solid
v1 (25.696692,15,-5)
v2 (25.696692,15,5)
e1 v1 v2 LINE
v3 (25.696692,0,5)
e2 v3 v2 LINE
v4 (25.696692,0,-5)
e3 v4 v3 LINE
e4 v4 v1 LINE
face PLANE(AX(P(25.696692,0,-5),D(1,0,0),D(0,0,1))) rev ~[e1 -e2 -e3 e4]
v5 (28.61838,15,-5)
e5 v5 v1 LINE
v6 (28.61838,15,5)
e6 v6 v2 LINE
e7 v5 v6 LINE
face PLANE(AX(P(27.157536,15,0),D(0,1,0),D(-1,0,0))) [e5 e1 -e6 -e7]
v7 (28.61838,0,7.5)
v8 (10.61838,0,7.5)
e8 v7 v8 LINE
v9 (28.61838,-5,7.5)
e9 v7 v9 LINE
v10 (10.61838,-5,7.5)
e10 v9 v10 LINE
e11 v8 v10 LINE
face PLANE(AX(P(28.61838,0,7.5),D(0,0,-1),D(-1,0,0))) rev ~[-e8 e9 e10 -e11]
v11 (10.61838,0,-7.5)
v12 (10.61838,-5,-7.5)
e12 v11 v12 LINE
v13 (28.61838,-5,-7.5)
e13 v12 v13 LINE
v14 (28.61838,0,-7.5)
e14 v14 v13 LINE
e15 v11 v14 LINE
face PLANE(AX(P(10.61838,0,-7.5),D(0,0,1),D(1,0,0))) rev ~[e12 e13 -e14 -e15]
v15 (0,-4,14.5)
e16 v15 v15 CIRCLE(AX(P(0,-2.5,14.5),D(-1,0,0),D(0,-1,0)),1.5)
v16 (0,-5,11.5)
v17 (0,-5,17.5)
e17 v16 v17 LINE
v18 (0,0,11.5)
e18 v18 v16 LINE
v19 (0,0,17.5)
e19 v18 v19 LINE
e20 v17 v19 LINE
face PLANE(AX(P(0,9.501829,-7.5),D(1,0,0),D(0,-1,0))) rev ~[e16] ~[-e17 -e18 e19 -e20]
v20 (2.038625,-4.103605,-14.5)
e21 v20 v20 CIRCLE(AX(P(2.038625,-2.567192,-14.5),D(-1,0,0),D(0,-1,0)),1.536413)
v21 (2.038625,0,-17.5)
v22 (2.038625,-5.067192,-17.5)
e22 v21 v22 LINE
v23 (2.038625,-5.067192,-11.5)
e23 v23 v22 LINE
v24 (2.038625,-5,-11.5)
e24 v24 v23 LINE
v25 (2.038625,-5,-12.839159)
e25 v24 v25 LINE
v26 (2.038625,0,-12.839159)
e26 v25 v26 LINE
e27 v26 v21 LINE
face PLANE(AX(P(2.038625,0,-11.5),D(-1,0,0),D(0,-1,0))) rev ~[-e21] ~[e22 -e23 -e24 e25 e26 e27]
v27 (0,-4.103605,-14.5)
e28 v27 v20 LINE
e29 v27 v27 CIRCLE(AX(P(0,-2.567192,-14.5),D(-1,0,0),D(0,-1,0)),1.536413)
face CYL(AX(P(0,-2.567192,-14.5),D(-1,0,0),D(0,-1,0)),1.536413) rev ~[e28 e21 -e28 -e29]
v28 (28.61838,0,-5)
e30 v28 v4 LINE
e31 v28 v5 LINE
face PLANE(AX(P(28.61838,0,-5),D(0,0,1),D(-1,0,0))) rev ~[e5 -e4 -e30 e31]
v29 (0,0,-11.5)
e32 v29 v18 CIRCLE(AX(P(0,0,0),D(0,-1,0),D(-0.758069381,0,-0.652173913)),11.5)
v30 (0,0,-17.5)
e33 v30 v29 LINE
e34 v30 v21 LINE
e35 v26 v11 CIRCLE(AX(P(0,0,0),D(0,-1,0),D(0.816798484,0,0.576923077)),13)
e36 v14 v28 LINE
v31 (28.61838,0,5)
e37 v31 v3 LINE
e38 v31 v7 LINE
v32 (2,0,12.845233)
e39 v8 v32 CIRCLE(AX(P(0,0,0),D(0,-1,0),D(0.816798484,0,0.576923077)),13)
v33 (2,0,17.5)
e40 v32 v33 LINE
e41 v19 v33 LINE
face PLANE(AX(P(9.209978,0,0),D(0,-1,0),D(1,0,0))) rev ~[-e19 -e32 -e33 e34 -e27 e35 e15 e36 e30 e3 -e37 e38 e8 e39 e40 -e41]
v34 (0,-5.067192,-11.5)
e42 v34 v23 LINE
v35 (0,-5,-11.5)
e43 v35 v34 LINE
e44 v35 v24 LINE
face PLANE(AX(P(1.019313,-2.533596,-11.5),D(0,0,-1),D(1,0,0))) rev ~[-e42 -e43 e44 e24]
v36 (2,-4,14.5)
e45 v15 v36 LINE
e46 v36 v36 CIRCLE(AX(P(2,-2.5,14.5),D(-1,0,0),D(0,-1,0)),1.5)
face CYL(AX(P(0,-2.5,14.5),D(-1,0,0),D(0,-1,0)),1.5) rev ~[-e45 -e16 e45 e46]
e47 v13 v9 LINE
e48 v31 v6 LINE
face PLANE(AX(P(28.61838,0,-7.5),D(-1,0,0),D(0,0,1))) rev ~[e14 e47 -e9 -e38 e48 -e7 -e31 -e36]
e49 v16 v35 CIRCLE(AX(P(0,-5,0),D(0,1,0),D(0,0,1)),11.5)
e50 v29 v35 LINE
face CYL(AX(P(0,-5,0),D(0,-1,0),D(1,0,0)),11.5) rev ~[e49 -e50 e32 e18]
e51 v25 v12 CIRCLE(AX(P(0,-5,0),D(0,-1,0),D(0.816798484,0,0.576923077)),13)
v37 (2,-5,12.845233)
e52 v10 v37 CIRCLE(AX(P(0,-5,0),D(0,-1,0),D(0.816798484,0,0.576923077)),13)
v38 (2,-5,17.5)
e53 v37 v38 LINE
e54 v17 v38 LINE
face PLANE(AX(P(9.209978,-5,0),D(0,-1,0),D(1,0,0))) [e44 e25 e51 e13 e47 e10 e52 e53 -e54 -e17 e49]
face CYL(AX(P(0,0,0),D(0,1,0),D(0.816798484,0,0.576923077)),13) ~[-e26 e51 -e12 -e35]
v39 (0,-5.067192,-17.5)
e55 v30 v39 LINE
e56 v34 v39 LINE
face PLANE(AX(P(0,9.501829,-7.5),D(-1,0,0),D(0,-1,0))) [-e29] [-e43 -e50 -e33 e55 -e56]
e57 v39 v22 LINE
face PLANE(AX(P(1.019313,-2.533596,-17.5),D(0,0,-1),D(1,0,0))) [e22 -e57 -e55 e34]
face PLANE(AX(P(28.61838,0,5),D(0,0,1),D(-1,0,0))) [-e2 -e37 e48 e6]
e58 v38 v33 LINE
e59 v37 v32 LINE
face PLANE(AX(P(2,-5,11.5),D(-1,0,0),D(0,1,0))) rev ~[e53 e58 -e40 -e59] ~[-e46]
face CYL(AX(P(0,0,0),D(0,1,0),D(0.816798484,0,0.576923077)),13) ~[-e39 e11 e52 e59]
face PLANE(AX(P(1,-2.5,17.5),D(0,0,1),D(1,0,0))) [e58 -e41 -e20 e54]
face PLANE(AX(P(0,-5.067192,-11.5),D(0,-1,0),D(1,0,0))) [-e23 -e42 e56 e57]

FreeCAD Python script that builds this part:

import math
import FreeCAD as App
import Part
import Sketcher
from FreeCAD import Vector
Q = App.Units.Quantity

doc = App.newDocument("Part")
body = doc.addObject("PartDesign::Body", "Body")

sketch1 = doc.addObject("Sketcher::SketchObject", "Sketch")
body.addObject(sketch1)
sketch1.AttachmentSupport = (doc.XZ_Plane, [""])
sketch1.MapMode = "FlatFace"
sketch1.addGeometry([
    Part.LineSegment(Vector(11, -8, 0), Vector(29, -8, 0)),
    Part.LineSegment(Vector(29, -8, 0), Vector(29, 8, 0)),
    Part.LineSegment(Vector(29, 8, 0), Vector(11, 8, 0)),
    Part.ArcOfCircle(Part.Circle(Vector(0, 0, 0), Vector(0, 0, 1), 13), math.radians(35), math.radians(325)),
], False)
sketch1.addConstraint([
    Sketcher.Constraint("Coincident", 0, 2, 1, 1),
    Sketcher.Constraint("Coincident", 1, 2, 2, 1),
    Sketcher.Constraint("Coincident", 2, 2, 3, 1),
    Sketcher.Constraint("Coincident", 3, 2, 0, 1),
    Sketcher.Constraint("Horizontal", 0),
    Sketcher.Constraint("Vertical", 1),
    Sketcher.Constraint("Horizontal", 2),
    Sketcher.Constraint("Coincident", 3, 3, -1, 1),
    Sketcher.Constraint("Vertical", 2, 2, 3, 2),
    Sketcher.Constraint("Radius", 3, Q("13 mm")),
    Sketcher.Constraint("DistanceX", 0, 1, 0, 2, Q("18 mm")),
    Sketcher.Constraint("DistanceY", 1, 1, 1, 2, Q("15 mm")),
])
pad1 = doc.addObject("PartDesign::Pad", "Pad")
body.addObject(pad1)
pad1.Profile = sketch1
pad1.Length = 5

sketch2 = doc.addObject("Sketcher::SketchObject", "Sketch001")
body.addObject(sketch2)
sketch2.AttachmentSupport = (doc.XZ_Plane, [""])
sketch2.MapMode = "FlatFace"
sketch2.AttachmentOffset = App.Placement(Vector(0, 0, 5), App.Rotation())
sketch2.addGeometry(Part.Circle(Vector(0, 0, 0), Vector(0, 0, 1), 12), False)
sketch2.addConstraint([
    Sketcher.Constraint("Coincident", 0, 3, -1, 1),
    Sketcher.Constraint("Diameter", 0, Q("23 mm")),
])
pocket1 = doc.addObject("PartDesign::Pocket", "Pocket")
body.addObject(pocket1)
pocket1.Profile = sketch2
pocket1.Length = 25

sketch3 = doc.addObject("Sketcher::SketchObject", "Sketch002")
body.addObject(sketch3)
sketch3.AttachmentSupport = (doc.XY_Plane, [""])
sketch3.MapMode = "FlatFace"
sketch3.AttachmentOffset = App.Placement(Vector(0, 0, -7.5), App.Rotation())
sketch3.addGeometry([
    Part.LineSegment(Vector(-20, -13, 0), Vector(-20, 10, 0)),
    Part.LineSegment(Vector(-20, 10, 0), Vector(0, 10, 0)),
    Part.LineSegment(Vector(0, 10, 0), Vector(0, -13, 0)),
    Part.LineSegment(Vector(0, -13, 0), Vector(-20, -13, 0)),
], False)
sketch3.addConstraint([
    Sketcher.Constraint("Coincident", 0, 2, 1, 1),
    Sketcher.Constraint("Coincident", 1, 2, 2, 1),
    Sketcher.Constraint("Coincident", 2, 2, 3, 1),
    Sketcher.Constraint("Coincident", 3, 2, 0, 1),
    Sketcher.Constraint("Vertical", 0),
    Sketcher.Constraint("Horizontal", 1),
    Sketcher.Constraint("Vertical", 2),
    Sketcher.Constraint("Horizontal", 3),
    Sketcher.Constraint("PointOnObject", 1, 2, -2),
    Sketcher.Constraint("DistanceY", 0, 1, 0, 2, Q("22.746801 mm")),
    Sketcher.Constraint("DistanceX", 1, 1, 1, 2, Q("19.723492 mm")),
    Sketcher.Constraint("DistanceY", -1, 1, 0, 2, Q("9.501829 mm")),
])
pocket2 = doc.addObject("PartDesign::Pocket", "Pocket001")
body.addObject(pocket2)
pocket2.Profile = sketch3
pocket2.Type = "ThroughAll"
pocket2.Midplane = True

sketch4 = doc.addObject("Sketcher::SketchObject", "Sketch003")
body.addObject(sketch4)
sketch4.AttachmentSupport = (doc.XY_Plane, [""])
sketch4.MapMode = "FlatFace"
sketch4.AttachmentOffset = App.Placement(Vector(0, 0, -11.5), App.Rotation())
sketch4.addGeometry([
    Part.LineSegment(Vector(0, -5.1, 0), Vector(0, 0, 0)),
    Part.LineSegment(Vector(0, 0, 0), Vector(2, 0, 0)),
    Part.LineSegment(Vector(2, 0, 0), Vector(2, -5.1, 0)),
    Part.LineSegment(Vector(2, -5.1, 0), Vector(0, -5.1, 0)),
], False)
sketch4.addConstraint([
    Sketcher.Constraint("Coincident", 0, 2, 1, 1),
    Sketcher.Constraint("Coincident", 1, 2, 2, 1),
    Sketcher.Constraint("Coincident", 2, 2, 3, 1),
    Sketcher.Constraint("Coincident", 3, 2, 0, 1),
    Sketcher.Constraint("Vertical", 0),
    Sketcher.Constraint("Horizontal", 1),
    Sketcher.Constraint("Vertical", 2),
    Sketcher.Constraint("Horizontal", 3),
    Sketcher.Constraint("Coincident", 0, 2, -1, 1),
    Sketcher.Constraint("DistanceY", 0, 1, 0, 2, Q("5.067192 mm")),
    Sketcher.Constraint("DistanceX", 1, 1, 1, 2, Q("2.038625 mm")),
])
pad2 = doc.addObject("PartDesign::Pad", "Pad001")
body.addObject(pad2)
pad2.Profile = sketch4
pad2.Length = 6
pad2.Reversed = True

sketch5 = doc.addObject("Sketcher::SketchObject", "Sketch004")
body.addObject(sketch5)
sketch5.AttachmentSupport = (doc.YZ_Plane, [""])
sketch5.MapMode = "FlatFace"
sketch5.addGeometry(Part.Circle(Vector(-2.6, -14.5, 0), Vector(0, 0, 1), 1.5), False)
sketch5.addConstraint([
    Sketcher.Constraint("DistanceY", 0, 3, -1, 1, Q("14.5 mm")),
    Sketcher.Constraint("Diameter", 0, Q("3.072826 mm")),
    Sketcher.Constraint("DistanceX", 0, 3, -1, 1, Q("2.567192 mm")),
])
pocket3 = doc.addObject("PartDesign::Pocket", "Pocket002")
body.addObject(pocket3)
pocket3.Profile = sketch5
pocket3.Length = 25
pocket3.Reversed = True

sketch6 = doc.addObject("Sketcher::SketchObject", "Sketch005")
body.addObject(sketch6)
sketch6.AttachmentSupport = (doc.XZ_Plane, [""])
sketch6.MapMode = "FlatFace"
sketch6.addGeometry([
    Part.LineSegment(Vector(28.6, 5, 0), Vector(28.6, -5, 0)),
    Part.LineSegment(Vector(28.6, -5, 0), Vector(25.7, -5, 0)),
    Part.LineSegment(Vector(25.7, -5, 0), Vector(25.7, 5, 0)),
    Part.LineSegment(Vector(25.7, 5, 0), Vector(28.6, 5, 0)),
], False)
sketch6.addConstraint([
    Sketcher.Constraint("Coincident", 0, 2, 1, 1),
    Sketcher.Constraint("Coincident", 1, 2, 2, 1),
    Sketcher.Constraint("Coincident", 2, 2, 3, 1),
    Sketcher.Constraint("Coincident", 3, 2, 0, 1),
    Sketcher.Constraint("Vertical", 0),
    Sketcher.Constraint("Horizontal", 1),
    Sketcher.Constraint("Vertical", 2),
    Sketcher.Constraint("Horizontal", 3),
    Sketcher.Constraint("DistanceY", 0, 2, 0, 1, Q("10 mm")),
    Sketcher.Constraint("DistanceY", 0, 2, -1, 1, Q("5 mm")),
    Sketcher.Constraint("DistanceX", 1, 2, 1, 1, Q("2.921688 mm")),
    Sketcher.Constraint("DistanceX", -1, 1, 0, 2, Q("28.61838 mm")),
])
pad3 = doc.addObject("PartDesign::Pad", "Pad002")
body.addObject(pad3)
pad3.Profile = sketch6
pad3.Length = 15
pad3.Reversed = True

sketch7 = doc.addObject("Sketcher::SketchObject", "Sketch006")
body.addObject(sketch7)
sketch7.AttachmentSupport = (doc.XY_Plane, [""])
sketch7.MapMode = "FlatFace"
sketch7.AttachmentOffset = App.Placement(Vector(0, 0, 11.5), App.Rotation())
sketch7.addGeometry([
    Part.LineSegment(Vector(0, 0, 0), Vector(0, -5, 0)),
    Part.LineSegment(Vector(0, -5, 0), Vector(2, -5, 0)),
    Part.LineSegment(Vector(2, -5, 0), Vector(2, 0, 0)),
    Part.LineSegment(Vector(2, 0, 0), Vector(0, 0, 0)),
], False)
sketch7.addConstraint([
    Sketcher.Constraint("Coincident", 0, 2, 1, 1),
    Sketcher.Constraint("Coincident", 1, 2, 2, 1),
    Sketcher.Constraint("Coincident", 2, 2, 3, 1),
    Sketcher.Constraint("Coincident", 3, 2, 0, 1),
    Sketcher.Constraint("Vertical", 0),
    Sketcher.Constraint("Horizontal", 1),
    Sketcher.Constraint("Vertical", 2),
    Sketcher.Constraint("Horizontal", 3),
    Sketcher.Constraint("Coincident", 3, 2, -1, 1),
    Sketcher.Constraint("DistanceX", 1, 1, 1, 2, Q("2 mm")),
    Sketcher.Constraint("DistanceY", 0, 2, 0, 1, Q("5 mm")),
])
pad4 = doc.addObject("PartDesign::Pad", "Pad003")
body.addObject(pad4)
pad4.Profile = sketch7
pad4.Length = 6

sketch8 = doc.addObject("Sketcher::SketchObject", "Sketch007")
body.addObject(sketch8)
sketch8.AttachmentSupport = (doc.YZ_Plane, [""])
sketch8.MapMode = "FlatFace"
sketch8.addGeometry(Part.Circle(Vector(-2.5, 14.5, 0), Vector(0, 0, 1), 1.5), False)
sketch8.addConstraint([
    Sketcher.Constraint("Diameter", 0, Q("3 mm")),
    Sketcher.Constraint("DistanceX", 0, 3, -1, 1, Q("2.5 mm")),
    Sketcher.Constraint("DistanceY", -1, 1, 0, 3, Q("14.5 mm")),
])
pocket4 = doc.addObject("PartDesign::Pocket", "Pocket003")
body.addObject(pocket4)
pocket4.Profile = sketch8
pocket4.Length = 25
pocket4.Reversed = True

doc.recompute()
